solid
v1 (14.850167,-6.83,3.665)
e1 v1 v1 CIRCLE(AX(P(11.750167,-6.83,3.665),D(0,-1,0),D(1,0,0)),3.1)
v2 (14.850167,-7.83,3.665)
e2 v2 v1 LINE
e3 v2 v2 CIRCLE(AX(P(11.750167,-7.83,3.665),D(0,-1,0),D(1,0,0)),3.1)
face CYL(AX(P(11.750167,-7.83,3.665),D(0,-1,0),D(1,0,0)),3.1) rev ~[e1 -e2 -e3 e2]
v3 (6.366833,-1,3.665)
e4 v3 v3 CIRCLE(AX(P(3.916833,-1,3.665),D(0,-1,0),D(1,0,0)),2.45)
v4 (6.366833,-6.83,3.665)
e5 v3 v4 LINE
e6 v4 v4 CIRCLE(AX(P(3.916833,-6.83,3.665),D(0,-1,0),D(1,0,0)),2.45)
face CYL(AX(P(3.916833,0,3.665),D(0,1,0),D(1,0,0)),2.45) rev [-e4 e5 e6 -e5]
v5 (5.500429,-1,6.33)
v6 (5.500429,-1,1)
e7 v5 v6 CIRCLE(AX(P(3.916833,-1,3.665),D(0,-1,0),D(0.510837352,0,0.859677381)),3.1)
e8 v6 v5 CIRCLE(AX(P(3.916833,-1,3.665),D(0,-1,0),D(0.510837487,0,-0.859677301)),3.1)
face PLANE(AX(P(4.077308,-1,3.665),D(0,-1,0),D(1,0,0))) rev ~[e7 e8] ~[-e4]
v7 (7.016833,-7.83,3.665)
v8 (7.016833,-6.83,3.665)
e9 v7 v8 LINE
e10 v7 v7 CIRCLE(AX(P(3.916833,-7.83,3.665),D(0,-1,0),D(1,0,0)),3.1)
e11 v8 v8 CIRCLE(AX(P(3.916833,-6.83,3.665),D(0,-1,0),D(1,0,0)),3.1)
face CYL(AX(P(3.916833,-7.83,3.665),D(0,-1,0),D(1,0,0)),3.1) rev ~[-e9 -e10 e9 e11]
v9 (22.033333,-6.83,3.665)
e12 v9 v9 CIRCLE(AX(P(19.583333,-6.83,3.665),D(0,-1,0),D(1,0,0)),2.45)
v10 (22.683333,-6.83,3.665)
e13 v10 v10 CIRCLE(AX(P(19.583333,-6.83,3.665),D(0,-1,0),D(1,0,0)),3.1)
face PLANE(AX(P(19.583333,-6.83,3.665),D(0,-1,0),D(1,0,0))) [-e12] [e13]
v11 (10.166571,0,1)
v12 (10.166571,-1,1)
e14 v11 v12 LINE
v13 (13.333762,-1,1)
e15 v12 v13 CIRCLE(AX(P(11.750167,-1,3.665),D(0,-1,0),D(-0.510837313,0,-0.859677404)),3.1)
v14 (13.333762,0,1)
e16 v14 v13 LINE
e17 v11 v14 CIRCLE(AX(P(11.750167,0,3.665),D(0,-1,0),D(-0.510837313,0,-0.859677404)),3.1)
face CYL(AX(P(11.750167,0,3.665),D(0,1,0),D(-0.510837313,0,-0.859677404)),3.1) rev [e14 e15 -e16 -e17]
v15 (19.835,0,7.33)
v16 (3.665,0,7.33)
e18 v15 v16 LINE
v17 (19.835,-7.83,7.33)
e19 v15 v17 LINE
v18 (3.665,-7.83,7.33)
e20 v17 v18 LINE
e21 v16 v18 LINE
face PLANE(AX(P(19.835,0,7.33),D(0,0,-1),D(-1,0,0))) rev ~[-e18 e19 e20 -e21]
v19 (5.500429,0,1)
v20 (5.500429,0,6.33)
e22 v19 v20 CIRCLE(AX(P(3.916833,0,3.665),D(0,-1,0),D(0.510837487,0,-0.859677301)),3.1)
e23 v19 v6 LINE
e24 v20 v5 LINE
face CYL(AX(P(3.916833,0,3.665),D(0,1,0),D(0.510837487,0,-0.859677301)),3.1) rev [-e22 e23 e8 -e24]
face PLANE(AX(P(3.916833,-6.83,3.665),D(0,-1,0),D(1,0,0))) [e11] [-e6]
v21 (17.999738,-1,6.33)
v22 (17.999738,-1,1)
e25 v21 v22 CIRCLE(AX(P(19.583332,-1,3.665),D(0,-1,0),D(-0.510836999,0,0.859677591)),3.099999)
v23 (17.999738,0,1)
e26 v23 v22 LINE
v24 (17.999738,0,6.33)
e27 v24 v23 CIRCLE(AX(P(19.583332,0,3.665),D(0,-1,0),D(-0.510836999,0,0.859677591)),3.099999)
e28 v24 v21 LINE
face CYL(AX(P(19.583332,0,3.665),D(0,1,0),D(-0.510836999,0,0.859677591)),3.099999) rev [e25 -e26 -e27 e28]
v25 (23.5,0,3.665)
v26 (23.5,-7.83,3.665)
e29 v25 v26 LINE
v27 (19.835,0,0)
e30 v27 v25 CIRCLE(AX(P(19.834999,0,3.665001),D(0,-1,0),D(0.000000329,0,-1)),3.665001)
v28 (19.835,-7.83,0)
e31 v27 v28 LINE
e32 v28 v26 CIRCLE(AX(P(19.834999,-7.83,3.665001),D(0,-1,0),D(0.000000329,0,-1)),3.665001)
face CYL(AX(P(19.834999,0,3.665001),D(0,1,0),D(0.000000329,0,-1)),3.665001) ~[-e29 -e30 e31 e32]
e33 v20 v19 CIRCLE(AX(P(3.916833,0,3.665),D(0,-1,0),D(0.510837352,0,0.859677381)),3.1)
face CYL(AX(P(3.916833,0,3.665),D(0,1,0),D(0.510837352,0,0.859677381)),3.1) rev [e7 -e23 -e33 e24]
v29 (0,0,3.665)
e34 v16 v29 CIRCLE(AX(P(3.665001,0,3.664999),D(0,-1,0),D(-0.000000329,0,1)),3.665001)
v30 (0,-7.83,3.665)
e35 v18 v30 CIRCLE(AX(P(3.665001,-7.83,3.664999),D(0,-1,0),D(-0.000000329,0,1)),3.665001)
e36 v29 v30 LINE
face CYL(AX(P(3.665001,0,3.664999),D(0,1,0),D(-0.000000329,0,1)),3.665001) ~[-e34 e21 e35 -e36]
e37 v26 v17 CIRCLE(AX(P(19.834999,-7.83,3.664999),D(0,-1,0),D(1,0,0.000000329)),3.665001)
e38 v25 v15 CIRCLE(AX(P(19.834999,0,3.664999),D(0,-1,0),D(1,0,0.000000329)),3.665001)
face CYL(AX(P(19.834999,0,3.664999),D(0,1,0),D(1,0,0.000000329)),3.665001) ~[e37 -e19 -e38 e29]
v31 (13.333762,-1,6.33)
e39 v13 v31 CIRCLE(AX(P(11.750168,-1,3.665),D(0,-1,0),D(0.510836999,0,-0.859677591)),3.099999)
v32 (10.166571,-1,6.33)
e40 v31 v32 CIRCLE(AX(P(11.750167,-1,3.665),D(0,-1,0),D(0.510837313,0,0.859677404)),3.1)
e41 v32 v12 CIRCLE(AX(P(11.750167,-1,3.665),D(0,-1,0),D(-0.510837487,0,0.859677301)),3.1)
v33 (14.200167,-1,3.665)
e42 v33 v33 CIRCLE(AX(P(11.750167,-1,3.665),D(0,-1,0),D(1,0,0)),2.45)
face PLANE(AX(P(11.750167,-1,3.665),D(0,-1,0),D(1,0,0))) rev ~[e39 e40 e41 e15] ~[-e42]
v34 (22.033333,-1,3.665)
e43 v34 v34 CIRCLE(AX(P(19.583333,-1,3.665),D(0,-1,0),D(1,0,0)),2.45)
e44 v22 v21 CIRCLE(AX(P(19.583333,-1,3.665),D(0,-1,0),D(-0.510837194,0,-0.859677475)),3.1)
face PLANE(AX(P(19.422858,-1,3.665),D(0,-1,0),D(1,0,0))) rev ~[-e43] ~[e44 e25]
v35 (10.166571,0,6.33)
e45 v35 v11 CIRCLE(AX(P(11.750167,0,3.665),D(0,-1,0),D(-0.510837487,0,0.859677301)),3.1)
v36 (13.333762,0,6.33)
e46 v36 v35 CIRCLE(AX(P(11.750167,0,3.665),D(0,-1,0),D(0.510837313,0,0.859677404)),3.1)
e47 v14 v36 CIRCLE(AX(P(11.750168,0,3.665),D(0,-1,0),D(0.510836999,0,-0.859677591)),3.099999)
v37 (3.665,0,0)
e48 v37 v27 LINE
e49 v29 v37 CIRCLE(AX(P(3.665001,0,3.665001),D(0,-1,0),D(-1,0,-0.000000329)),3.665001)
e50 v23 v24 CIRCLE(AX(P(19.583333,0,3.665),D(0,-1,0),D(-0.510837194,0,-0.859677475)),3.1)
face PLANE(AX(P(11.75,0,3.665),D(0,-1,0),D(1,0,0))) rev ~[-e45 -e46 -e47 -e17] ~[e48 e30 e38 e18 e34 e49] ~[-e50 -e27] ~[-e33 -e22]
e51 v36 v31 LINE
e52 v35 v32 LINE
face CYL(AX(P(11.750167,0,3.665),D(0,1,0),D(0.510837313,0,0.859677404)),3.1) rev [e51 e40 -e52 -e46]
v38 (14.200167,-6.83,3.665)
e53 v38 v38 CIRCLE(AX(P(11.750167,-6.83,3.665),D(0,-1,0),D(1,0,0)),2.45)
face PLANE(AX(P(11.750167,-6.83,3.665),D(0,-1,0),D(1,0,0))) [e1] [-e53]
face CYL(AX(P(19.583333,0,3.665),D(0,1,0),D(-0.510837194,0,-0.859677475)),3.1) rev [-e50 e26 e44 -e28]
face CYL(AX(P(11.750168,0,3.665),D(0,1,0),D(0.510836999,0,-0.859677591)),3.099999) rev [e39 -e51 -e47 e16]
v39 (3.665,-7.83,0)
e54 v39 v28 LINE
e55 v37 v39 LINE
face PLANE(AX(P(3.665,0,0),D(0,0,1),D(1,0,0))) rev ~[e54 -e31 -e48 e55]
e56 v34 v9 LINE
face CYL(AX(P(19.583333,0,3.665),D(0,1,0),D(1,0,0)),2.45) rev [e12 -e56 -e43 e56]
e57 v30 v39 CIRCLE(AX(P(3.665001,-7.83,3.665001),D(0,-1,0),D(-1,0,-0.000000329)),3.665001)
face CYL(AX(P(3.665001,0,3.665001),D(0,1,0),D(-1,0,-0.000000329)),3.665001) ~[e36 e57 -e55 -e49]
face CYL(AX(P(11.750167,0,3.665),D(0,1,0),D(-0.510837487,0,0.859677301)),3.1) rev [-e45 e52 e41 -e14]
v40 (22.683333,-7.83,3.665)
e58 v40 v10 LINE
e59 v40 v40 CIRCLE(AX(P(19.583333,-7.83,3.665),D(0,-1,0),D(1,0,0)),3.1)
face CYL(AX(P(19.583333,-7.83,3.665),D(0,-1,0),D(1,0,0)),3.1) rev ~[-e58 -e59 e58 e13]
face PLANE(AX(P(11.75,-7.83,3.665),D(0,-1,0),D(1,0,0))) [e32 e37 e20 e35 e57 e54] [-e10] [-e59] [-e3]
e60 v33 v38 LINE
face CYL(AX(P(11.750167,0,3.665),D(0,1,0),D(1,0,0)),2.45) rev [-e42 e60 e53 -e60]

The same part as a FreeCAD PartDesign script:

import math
import FreeCAD as App
import Part
import Sketcher
from FreeCAD import Vector

doc = App.newDocument("Part")
body = doc.addObject("PartDesign::Body", "Body")

# Sketch on XZ plane
sketch1 = body.newObject("Sketcher::SketchObject", "Sketch")
sketch1.AttachmentSupport = (doc.getObject("XZ_Plane"), [""])
sketch1.MapMode = "FlatFace"
sketch1.addGeometry(Part.ArcOfCircle(Part.Circle(Vector(3.7, 3.7, 0), Vector(0, 0, 1), 3.7), math.radians(-180), math.radians(-90)), False)
sketch1.addGeometry(Part.LineSegment(Vector(3.7, 0, 0), Vector(19.8, 0, 0)), False)
sketch1.addGeometry(Part.ArcOfCircle(Part.Circle(Vector(19.8, 3.7, 0), Vector(0, 0, 1), 3.7), math.radians(-90), math.radians(0)), False)
sketch1.addGeometry(Part.ArcOfCircle(Part.Circle(Vector(19.8, 3.7, 0), Vector(0, 0, 1), 3.7), math.radians(0), math.radians(90)), False)
sketch1.addGeometry(Part.LineSegment(Vector(19.8, 7.3, 0), Vector(3.7, 7.3, 0)), False)
sketch1.addGeometry(Part.ArcOfCircle(Part.Circle(Vector(3.7, 3.7, 0), Vector(0, 0, 1), 3.7), math.radians(90), math.radians(180)), False)
sketch1.addGeometry(Part.Circle(Vector(3.9, 3.7, 0), Vector(0, 0, 1), 2.5), False)
sketch1.addGeometry(Part.Circle(Vector(11.8, 3.7, 0), Vector(0, 0, 1), 2.5), False)
sketch1.addGeometry(Part.Circle(Vector(19.6, 3.7, 0), Vector(0, 0, 1), 2.5), False)
sketch1.addConstraint(Sketcher.Constraint("Tangent", 0, 2, 1, 1))
sketch1.addConstraint(Sketcher.Constraint("Tangent", 1, 2, 2, 1))
sketch1.addConstraint(Sketcher.Constraint("Tangent", 2, 2, 3, 1))
sketch1.addConstraint(Sketcher.Constraint("Tangent", 3, 2, 4, 1))
sketch1.addConstraint(Sketcher.Constraint("Tangent", 4, 2, 5, 1))
sketch1.addConstraint(Sketcher.Constraint("Tangent", 5, 2, 0, 1))
sketch1.addConstraint(Sketcher.Constraint("Horizontal", 1))
sketch1.addConstraint(Sketcher.Constraint("Horizontal", 4))
sketch1.addConstraint(Sketcher.Constraint("Equal", 0, 2))
sketch1.addConstraint(Sketcher.Constraint("Equal", 2, 3))
sketch1.addConstraint(Sketcher.Constraint("Equal", 6, 7))
sketch1.addConstraint(Sketcher.Constraint("Equal", 7, 8))
sketch1.addConstraint(Sketcher.Constraint("PointOnObject", 0, 2, -1))
sketch1.addConstraint(Sketcher.Constraint("PointOnObject", 5, 2, -2))
sketch1.addConstraint(Sketcher.Constraint("Horizontal", 5, 3, 6, 3))
sketch1.addConstraint(Sketcher.Constraint("Horizontal", 6, 3, 7, 3))
sketch1.addConstraint(Sketcher.Constraint("Horizontal", 7, 3, 8, 3))
sketch1.addConstraint(Sketcher.Constraint("Horizontal", 8, 3, 2, 2))
sketch1.addConstraint(Sketcher.Constraint("Horizontal", 2, 2, 5, 2))
sketch1.addConstraint(Sketcher.Constraint("Diameter", 6, 4.9))
sketch1.addConstraint(Sketcher.Constraint("Radius", 0, 3.665001))
sketch1.addConstraint(Sketcher.Constraint("DistanceX", 1, 1, 1, 2, 16.17))
sketch1.addConstraint(Sketcher.Constraint("DistanceX", 6, 3, 8, 3, 15.6665))
sketch1.addConstraint(Sketcher.Constraint("DistanceX", 0, 3, 6, 3, 0.251832))
sketch1.addConstraint(Sketcher.Constraint("DistanceX", 7, 3, 2, 3, 8.084832))
pad1 = body.newObject("PartDesign::Pad", "Pad")
pad1.Profile = sketch1
pad1.Length = 7.83

# Sketch on XZ plane
sketch2 = body.newObject("Sketcher::SketchObject", "Sketch001")
sketch2.AttachmentSupport = (doc.getObject("XZ_Plane"), [""])
sketch2.MapMode = "FlatFace"
sketch2.addGeometry(Part.ArcOfCircle(Part.Circle(Vector(3.9, 3.7, 0), Vector(0, 0, 1), 3.1), math.radians(-59), math.radians(59)), False)
sketch2.addGeometry(Part.ArcOfCircle(Part.Circle(Vector(3.9, 3.7, 0), Vector(0, 0, 1), 3.1), math.radians(59), math.radians(301)), False)
sketch2.addGeometry(Part.Circle(Vector(3.9, 3.7, 0), Vector(0, 0, 1), 2.5), False)
sketch2.addGeometry(Part.ArcOfCircle(Part.Circle(Vector(11.8, 3.7, 0), Vector(0, 0, 1), 3.1), math.radians(59), math.radians(121)), False)
sketch2.addGeometry(Part.ArcOfCircle(Part.Circle(Vector(11.8, 3.7, 0), Vector(0, 0, 1), 3.1), math.radians(121), math.radians(239)), False)
sketch2.addGeometry(Part.ArcOfCircle(Part.Circle(Vector(11.8, 3.7, 0), Vector(0, 0, 1), 3.1), math.radians(-121), math.radians(-59)), False)
sketch2.addGeometry(Part.ArcOfCircle(Part.Circle(Vector(11.8, 3.7, 0), Vector(0, 0, 1), 3.1), math.radians(-59), math.radians(59)), False)
sketch2.addGeometry(Part.Circle(Vector(11.8, 3.7, 0), Vector(0, 0, 1), 2.5), False)
sketch2.addGeometry(Part.ArcOfCircle(Part.Circle(Vector(19.6, 3.7, 0), Vector(0, 0, 1), 3.1), math.radians(-121), math.radians(121)), False)
sketch2.addGeometry(Part.ArcOfCircle(Part.Circle(Vector(19.6, 3.7, 0), Vector(0, 0, 1), 3.1), math.radians(121), math.radians(239)), False)
sketch2.addGeometry(Part.Circle(Vector(19.6, 3.7, 0), Vector(0, 0, 1), 2.5), False)
sketch2.addConstraint(Sketcher.Constraint("Tangent", 0, 1, 1, 2))
sketch2.addConstraint(Sketcher.Constraint("Coincident", 1, 1, 0, 2))
sketch2.addConstraint(Sketcher.Constraint("Tangent", 3, 2, 4, 1))
sketch2.addConstraint(Sketcher.Constraint("Tangent", 4, 2, 5, 1))
sketch2.addConstraint(Sketcher.Constraint("Tangent", 5, 2, 6, 1))
sketch2.addConstraint(Sketcher.Constraint("Tangent", 6, 2, 3, 1))
sketch2.addConstraint(Sketcher.Constraint("Tangent", 8, 1, 9, 2))
sketch2.addConstraint(Sketcher.Constraint("Coincident", 9, 1, 8, 2))
sketch2.addConstraint(Sketcher.Constraint("Coincident", 2, 3, 0, 3))
sketch2.addConstraint(Sketcher.Constraint("Coincident", 7, 3, 3, 3))
sketch2.addConstraint(Sketcher.Constraint("Coincident", 10, 3, 8, 3))
sketch2.addConstraint(Sketcher.Constraint("Equal", 1, 3))
sketch2.addConstraint(Sketcher.Constraint("Equal", 3, 4))
sketch2.addConstraint(Sketcher.Constraint("Equal", 2, 7))
sketch2.addConstraint(Sketcher.Constraint("Equal", 6, 8))
sketch2.addConstraint(Sketcher.Constraint("Equal", 7, 10))
sketch2.addConstraint(Sketcher.Constraint("Horizontal", 2, 3, 3, 3))
sketch2.addConstraint(Sketcher.Constraint("Horizontal", 7, 3, 8, 3))
sketch2.addConstraint(Sketcher.Constraint("Horizontal", 1, 1, 3, 2))
sketch2.addConstraint(Sketcher.Constraint("Horizontal", 0, 1, 4, 2))
sketch2.addConstraint(Sketcher.Constraint("Horizontal", 4, 2, 5, 2))
sketch2.addConstraint(Sketcher.Constraint("Horizontal", 3, 2, 6, 2))
sketch2.addConstraint(Sketcher.Constraint("Horizontal", 5, 2, 8, 1))
sketch2.addConstraint(Sketcher.Constraint("Horizontal", 6, 2, 9, 1))
sketch2.addConstraint(Sketcher.Constraint("Vertical", 0, 1, 1, 1))
sketch2.addConstraint(Sketcher.Constraint("Diameter", 2, 4.9))
sketch2.addConstraint(Sketcher.Constraint("Radius", 0, 3.1))
sketch2.addConstraint(Sketcher.Constraint("DistanceY", -1, 1, 0, 1, 1.0))
sketch2.addConstraint(Sketcher.Constraint("DistanceY", -1, 1, 1, 1, 6.33))
sketch2.addConstraint(Sketcher.Constraint("DistanceX", -1, 1, 0, 1, 5.500429))
sketch2.addConstraint(Sketcher.Constraint("DistanceX", -1, 1, 3, 2, 10.166571))
sketch2.addConstraint(Sketcher.Constraint("DistanceX", -1, 1, 9, 1, 17.999738))
pocket1 = body.newObject("PartDesign::Pocket", "Pocket")
pocket1.Profile = sketch2
pocket1.Length = 1
pocket1.Reversed = True

# Sketch on XZ plane
sketch3 = body.newObject("Sketcher::SketchObject", "Sketch002")
sketch3.AttachmentSupport = (doc.getObject("XZ_Plane"), [""])
sketch3.MapMode = "FlatFace"
sketch3.AttachmentOffset = App.Placement(Vector(0, 0, 7.83), App.Rotation())
sketch3.addGeometry(Part.Circle(Vector(3.9, 3.7, 0), Vector(0, 0, 1), 3.1), False)
sketch3.addGeometry(Part.Circle(Vector(3.9, 3.7, 0), Vector(0, 0, 1), 2.5), False)
sketch3.addGeometry(Part.Circle(Vector(11.8, 3.7, 0), Vector(0, 0, 1), 3.1), False)
sketch3.addGeometry(Part.Circle(Vector(11.8, 3.7, 0), Vector(0, 0, 1), 2.5), False)
sketch3.addGeometry(Part.Circle(Vector(19.6, 3.7, 0), Vector(0, 0, 1), 3.1), False)
sketch3.addGeometry(Part.Circle(Vector(19.6, 3.7, 0), Vector(0, 0, 1), 2.5), False)
sketch3.addConstraint(Sketcher.Constraint("Coincident", 1, 3, 0, 3))
sketch3.addConstraint(Sketcher.Constraint("Coincident", 3, 3, 2, 3))
sketch3.addConstraint(Sketcher.Constraint("Coincident", 5, 3, 4, 3))
sketch3.addConstraint(Sketcher.Constraint("Equal", 0, 2))
sketch3.addConstraint(Sketcher.Constraint("Equal", 1, 3))
sketch3.addConstraint(Sketcher.Constraint("Equal", 2, 4))
sketch3.addConstraint(Sketcher.Constraint("Equal", 3, 5))
sketch3.addConstraint(Sketcher.Constraint("Horizontal", 1, 3, 2, 3))
sketch3.addConstraint(Sketcher.Constraint("Horizontal", 3, 3, 4, 3))
sketch3.addConstraint(Sketcher.Constraint("Diameter", 0, 6.2))
sketch3.addConstraint(Sketcher.Constraint("Diameter", 1, 4.9))
sketch3.addConstraint(Sketcher.Constraint("DistanceY", -1, 1, 0, 3, 3.665))
sketch3.addConstraint(Sketcher.Constraint("DistanceX", 0, 3, 4, 3, 15.6665))
sketch3.addConstraint(Sketcher.Constraint("DistanceX", -1, 1, 0, 3, 3.916833))
sketch3.addConstraint(Sketcher.Constraint("DistanceX", -1, 1, 2, 3, 11.750167))
pocket2 = body.newObject("PartDesign::Pocket", "Pocket001")
pocket2.Profile = sketch3
pocket2.Length = 1

doc.recompute()
